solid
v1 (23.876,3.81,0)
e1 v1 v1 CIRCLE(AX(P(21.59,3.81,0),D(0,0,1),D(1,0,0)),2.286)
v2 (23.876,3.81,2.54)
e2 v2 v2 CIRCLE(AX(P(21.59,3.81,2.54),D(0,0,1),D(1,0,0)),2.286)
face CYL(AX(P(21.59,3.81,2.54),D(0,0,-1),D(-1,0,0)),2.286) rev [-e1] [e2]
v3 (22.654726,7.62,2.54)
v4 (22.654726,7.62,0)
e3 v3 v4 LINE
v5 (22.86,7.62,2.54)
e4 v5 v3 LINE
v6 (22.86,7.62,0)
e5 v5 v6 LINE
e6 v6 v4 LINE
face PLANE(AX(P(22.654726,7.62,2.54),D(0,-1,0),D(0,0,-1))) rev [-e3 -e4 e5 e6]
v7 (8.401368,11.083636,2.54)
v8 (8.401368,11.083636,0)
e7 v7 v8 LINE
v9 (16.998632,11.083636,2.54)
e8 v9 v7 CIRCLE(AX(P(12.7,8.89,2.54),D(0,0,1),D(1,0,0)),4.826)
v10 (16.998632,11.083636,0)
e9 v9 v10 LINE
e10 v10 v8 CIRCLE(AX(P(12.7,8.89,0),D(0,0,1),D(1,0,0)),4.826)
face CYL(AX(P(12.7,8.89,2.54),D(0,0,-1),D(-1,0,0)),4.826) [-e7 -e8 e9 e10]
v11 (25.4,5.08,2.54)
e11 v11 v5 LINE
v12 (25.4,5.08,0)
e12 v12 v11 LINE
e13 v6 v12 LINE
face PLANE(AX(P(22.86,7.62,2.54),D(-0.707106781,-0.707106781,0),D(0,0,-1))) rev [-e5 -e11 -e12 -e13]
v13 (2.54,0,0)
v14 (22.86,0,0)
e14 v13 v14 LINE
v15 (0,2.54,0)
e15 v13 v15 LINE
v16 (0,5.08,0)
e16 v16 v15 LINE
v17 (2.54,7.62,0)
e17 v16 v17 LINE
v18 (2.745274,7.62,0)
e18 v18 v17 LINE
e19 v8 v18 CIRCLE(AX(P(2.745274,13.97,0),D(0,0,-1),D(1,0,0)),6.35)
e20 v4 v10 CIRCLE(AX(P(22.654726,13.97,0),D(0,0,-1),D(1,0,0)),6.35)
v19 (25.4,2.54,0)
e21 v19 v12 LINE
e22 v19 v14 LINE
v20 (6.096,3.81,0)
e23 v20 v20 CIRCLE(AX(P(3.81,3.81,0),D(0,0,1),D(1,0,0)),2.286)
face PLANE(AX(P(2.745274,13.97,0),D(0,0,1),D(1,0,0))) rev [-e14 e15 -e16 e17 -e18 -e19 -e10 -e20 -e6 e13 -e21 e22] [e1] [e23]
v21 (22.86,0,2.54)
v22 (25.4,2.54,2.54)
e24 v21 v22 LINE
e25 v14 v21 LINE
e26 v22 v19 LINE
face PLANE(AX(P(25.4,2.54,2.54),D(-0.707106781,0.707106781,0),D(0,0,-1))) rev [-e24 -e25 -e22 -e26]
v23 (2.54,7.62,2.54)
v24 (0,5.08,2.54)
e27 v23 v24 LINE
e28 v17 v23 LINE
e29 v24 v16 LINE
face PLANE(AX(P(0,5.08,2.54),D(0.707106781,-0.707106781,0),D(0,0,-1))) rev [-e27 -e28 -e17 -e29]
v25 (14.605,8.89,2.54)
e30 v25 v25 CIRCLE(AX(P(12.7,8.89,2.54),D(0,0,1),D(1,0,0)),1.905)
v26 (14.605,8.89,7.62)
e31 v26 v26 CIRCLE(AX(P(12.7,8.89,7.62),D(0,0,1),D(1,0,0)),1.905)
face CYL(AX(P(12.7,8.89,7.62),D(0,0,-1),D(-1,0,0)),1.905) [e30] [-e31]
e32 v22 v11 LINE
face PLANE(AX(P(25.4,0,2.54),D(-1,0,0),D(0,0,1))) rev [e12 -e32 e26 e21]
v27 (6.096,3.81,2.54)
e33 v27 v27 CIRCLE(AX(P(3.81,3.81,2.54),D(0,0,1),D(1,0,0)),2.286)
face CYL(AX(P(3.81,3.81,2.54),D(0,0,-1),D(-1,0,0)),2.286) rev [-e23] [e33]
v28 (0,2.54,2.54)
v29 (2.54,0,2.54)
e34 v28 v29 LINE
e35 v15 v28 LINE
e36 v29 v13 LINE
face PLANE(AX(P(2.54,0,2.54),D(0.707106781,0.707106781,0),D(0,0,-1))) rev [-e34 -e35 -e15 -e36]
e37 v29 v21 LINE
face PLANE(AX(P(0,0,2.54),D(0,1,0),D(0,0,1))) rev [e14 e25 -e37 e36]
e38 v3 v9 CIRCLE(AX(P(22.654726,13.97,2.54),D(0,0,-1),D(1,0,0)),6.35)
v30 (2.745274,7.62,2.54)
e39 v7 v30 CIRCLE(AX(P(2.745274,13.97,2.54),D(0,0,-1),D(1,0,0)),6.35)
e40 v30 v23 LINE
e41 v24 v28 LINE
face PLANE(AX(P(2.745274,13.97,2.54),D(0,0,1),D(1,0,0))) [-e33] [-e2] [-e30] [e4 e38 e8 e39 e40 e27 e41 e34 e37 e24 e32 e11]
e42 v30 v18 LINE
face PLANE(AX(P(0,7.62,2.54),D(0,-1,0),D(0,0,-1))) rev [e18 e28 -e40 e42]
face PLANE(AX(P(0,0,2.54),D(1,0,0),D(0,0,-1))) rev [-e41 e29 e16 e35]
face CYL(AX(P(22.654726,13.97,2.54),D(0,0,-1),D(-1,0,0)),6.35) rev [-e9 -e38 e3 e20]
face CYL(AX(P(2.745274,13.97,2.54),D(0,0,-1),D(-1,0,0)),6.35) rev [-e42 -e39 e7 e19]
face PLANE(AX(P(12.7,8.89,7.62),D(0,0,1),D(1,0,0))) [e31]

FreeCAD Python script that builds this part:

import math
import FreeCAD as App
import Part
import Sketcher
from FreeCAD import Vector
Q = App.Units.Quantity


def edges_at(feature, points):
    """Names of the edges that pass closest to the given points."""
    edges = feature.Shape.Edges
    near = lambda p: min(range(len(edges)), key=lambda i: edges[i].distToShape(Part.Vertex(*p))[0])
    return sorted({f"Edge{near(p) + 1}" for p in points})

doc = App.newDocument("Part")
body = doc.addObject("PartDesign::Body", "Body")

# Sketch on XY plane
sketch1 = body.newObject("Sketcher::SketchObject", "Sketch")
sketch1.AttachmentSupport = (doc.getObject("XY_Plane"), [""])
sketch1.MapMode = "FlatFace"
sketch1.addGeometry([
    Part.LineSegment(Vector(25.4, 7.6, 0), Vector(22.7, 7.6, 0)),  # 0
    Part.ArcOfCircle(Part.Circle(Vector(22.7, 14, 0), Vector(0, 0, 1), 6.4), math.radians(-153), math.radians(-90)),  # 1
    Part.ArcOfCircle(Part.Circle(Vector(12.7, 8.9, 0), Vector(0, 0, 1), 4.8), math.radians(27), math.radians(153)),  # 2
    Part.ArcOfCircle(Part.Circle(Vector(2.7, 14, 0), Vector(0, 0, 1), 6.4), math.radians(-90), math.radians(-27)),  # 3
    Part.LineSegment(Vector(2.7, 7.6, 0), Vector(0, 7.6, 0)),  # 4
    Part.LineSegment(Vector(0, 7.6, 0), Vector(0, 0, 0)),  # 5
    Part.LineSegment(Vector(0, 0, 0), Vector(25.4, 0, 0)),  # 6
    Part.LineSegment(Vector(25.4, 0, 0), Vector(25.4, 7.6, 0)),  # 7
    Part.Circle(Vector(21.6, 3.8, 0), Vector(0, 0, 1), 2.3),  # 8
    Part.Circle(Vector(3.8, 3.8, 0), Vector(0, 0, 1), 2.3),  # 9
], False)
sketch1.addConstraint([
    Sketcher.Constraint("Tangent", 0, 2, 1, 2),
    Sketcher.Constraint("Tangent", 1, 1, 2, 1),
    Sketcher.Constraint("Tangent", 2, 2, 3, 2),
    Sketcher.Constraint("Tangent", 3, 1, 4, 1),
    Sketcher.Constraint("Coincident", 4, 2, 5, 1),
    Sketcher.Constraint("Coincident", 5, 2, 6, 1),
    Sketcher.Constraint("Coincident", 6, 2, 7, 1),
    Sketcher.Constraint("Coincident", 7, 2, 0, 1),
    Sketcher.Constraint("Horizontal", 0),
    Sketcher.Constraint("Horizontal", 4),
    Sketcher.Constraint("Vertical", 5),
    Sketcher.Constraint("Horizontal", 6),
    Sketcher.Constraint("Vertical", 7),
    Sketcher.Constraint("Coincident", 5, 2, -1, 1),
    Sketcher.Constraint("Equal", 1, 3),
    Sketcher.Constraint("Equal", 8, 9),
    Sketcher.Constraint("Horizontal", 1, 3, 3, 3),
    Sketcher.Constraint("Horizontal", 8, 3, 9, 3),
    Sketcher.Constraint("Equal", 0, 4),
    Sketcher.Constraint("Diameter", 8, Q("0.18 in")),
    Sketcher.Constraint("DistanceX", 6, 1, 6, 2, Q("1 in")),
    Sketcher.Constraint("Radius", 1, Q("0.25 in")),
    Sketcher.Constraint("Radius", 2, Q("0.19 in")),
    Sketcher.Constraint("DistanceY", 5, 2, 5, 1, Q("0.3 in")),
    Sketcher.Constraint("DistanceY", 2, 3, 1, 3, Q("0.2 in")),
    Sketcher.Constraint("DistanceY", 8, 3, 1, 3, Q("0.4 in")),
    Sketcher.Constraint("DistanceX", 9, 3, 8, 3, Q("0.7 in")),
    Sketcher.Constraint("DistanceX", -1, 1, 8, 3, Q("0.85 in")),
])
pad1 = body.newObject("PartDesign::Pad", "Pad")
pad1.Profile = sketch1
pad1.Length = Q("0.1 in")

# Sketch on XY plane
sketch2 = body.newObject("Sketcher::SketchObject", "Sketch001")
sketch2.AttachmentSupport = (doc.getObject("XY_Plane"), [""])
sketch2.MapMode = "FlatFace"
sketch2.AttachmentOffset = App.Placement(Vector(0, 0, 0.1 * 25.4), App.Rotation())
sketch2.addGeometry(Part.Circle(Vector(12.7, 8.9, 0), Vector(0, 0, 1), 1.9), False)
sketch2.addConstraint([
    Sketcher.Constraint("Diameter", 0, Q("0.15 in")),
    Sketcher.Constraint("DistanceX", -1, 1, 0, 3, Q("0.5 in")),
    Sketcher.Constraint("DistanceY", -1, 1, 0, 3, Q("0.35 in")),
])
pad2 = body.newObject("PartDesign::Pad", "Pad001")
pad2.Profile = sketch2
pad2.Length = Q("0.2 in")
doc.recompute()

chamfer = body.newObject("PartDesign::Chamfer", "Chamfer")
chamfer.Base = (pad2, edges_at(pad2, [
    (0, 7.62, 1.27),
    (25.4, 7.62, 1.27),
    (25.4, 0, 1.27),
    (0, 0, 1.27),
]))
chamfer.Size = Q("0.1 in")

doc.recompute()
